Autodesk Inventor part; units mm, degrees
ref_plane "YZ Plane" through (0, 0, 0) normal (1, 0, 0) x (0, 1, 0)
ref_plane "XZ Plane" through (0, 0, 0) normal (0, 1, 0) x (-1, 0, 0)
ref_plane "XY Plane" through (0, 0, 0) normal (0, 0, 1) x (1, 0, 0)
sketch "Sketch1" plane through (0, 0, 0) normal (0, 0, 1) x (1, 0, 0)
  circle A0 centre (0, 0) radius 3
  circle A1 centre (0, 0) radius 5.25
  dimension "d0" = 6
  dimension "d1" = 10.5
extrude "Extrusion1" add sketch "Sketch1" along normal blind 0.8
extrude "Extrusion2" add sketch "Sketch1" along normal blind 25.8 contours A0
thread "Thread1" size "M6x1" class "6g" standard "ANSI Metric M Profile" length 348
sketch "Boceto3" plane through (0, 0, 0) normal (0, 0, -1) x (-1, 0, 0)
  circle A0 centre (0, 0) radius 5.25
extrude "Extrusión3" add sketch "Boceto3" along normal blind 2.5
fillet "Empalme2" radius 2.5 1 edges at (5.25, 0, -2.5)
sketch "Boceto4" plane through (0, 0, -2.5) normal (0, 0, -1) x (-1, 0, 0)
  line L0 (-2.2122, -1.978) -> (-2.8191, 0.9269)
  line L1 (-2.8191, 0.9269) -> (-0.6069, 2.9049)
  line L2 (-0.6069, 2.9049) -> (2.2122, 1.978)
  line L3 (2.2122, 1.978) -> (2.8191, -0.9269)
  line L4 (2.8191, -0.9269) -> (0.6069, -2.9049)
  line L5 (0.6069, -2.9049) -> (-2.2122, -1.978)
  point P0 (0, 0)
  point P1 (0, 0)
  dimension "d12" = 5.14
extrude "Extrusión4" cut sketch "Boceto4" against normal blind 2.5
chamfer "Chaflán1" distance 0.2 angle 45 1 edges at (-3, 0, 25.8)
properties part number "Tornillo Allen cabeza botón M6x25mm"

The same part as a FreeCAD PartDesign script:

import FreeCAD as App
import Part
import Sketcher

V = App.Vector
Q = App.Units.Quantity


def edges_at(feature, points):
    """Names of the edges that pass closest to the given points."""
    edges = feature.Shape.Edges
    near = lambda p: min(range(len(edges)), key=lambda i: edges[i].distToShape(Part.Vertex(*p))[0])
    return sorted({f"Edge{near(p) + 1}" for p in points})


def add_polygon(sketch, points):
    """Adds a closed chain of lines whose ends are joined by coincident constraints."""
    first, n = sketch.GeometryCount, len(points)
    for a, b in zip(points, points[1:] + points[:1]):
        sketch.addGeometry(Part.LineSegment(App.Vector(*a, 0), App.Vector(*b, 0)), False)
    for i in range(n):
        sketch.addConstraint(Sketcher.Constraint("Coincident", first + i, 2, first + (i + 1) % n, 1))

doc = App.newDocument("Part")
body = doc.addObject("PartDesign::Body", "Body")

# Sketch on XY plane
sketch1 = body.newObject("Sketcher::SketchObject", "Sketch")
sketch1.AttachmentSupport = (doc.getObject("XY_Plane"), [""])
sketch1.MapMode = "FlatFace"
sketch1.addGeometry([
    Part.Circle(V(0, 0, 0), V(0, 0, 1), 5.2),
    Part.Circle(V(0, 0, 0), V(0, 0, 1), 3),
], False)
sketch1.addConstraint([
    Sketcher.Constraint("Coincident", 0, 3, -1, 1),
    Sketcher.Constraint("Coincident", 1, 3, -1, 1),
    Sketcher.Constraint("Diameter", 1, 6.0),
    Sketcher.Constraint("Diameter", 0, 10.5),
])
pad1 = body.newObject("PartDesign::Pad", "Pad")
pad1.Profile = sketch1
pad1.Length = 0.8

# Sketch on XY plane
sketch2 = body.newObject("Sketcher::SketchObject", "Sketch001")
sketch2.AttachmentSupport = (doc.getObject("XY_Plane"), [""])
sketch2.MapMode = "FlatFace"
sketch2.addGeometry(Part.Circle(V(0, 0, 0), V(0, 0, 1), 3), False)
sketch2.addConstraint([
    Sketcher.Constraint("Coincident", 0, 3, -1, 1),
    Sketcher.Constraint("Diameter", 0, 6.0),
])
pad2 = body.newObject("PartDesign::Pad", "Pad001")
pad2.Profile = sketch2
pad2.Length = 25.8

# Sketch on XY plane
sketch3 = body.newObject("Sketcher::SketchObject", "Sketch002")
sketch3.AttachmentSupport = (doc.getObject("XY_Plane"), [""])
sketch3.MapMode = "FlatFace"
sketch3.addGeometry(Part.Circle(V(0, 0, 0), V(0, 0, 1), 5), False)
sketch3.addConstraint([
    Sketcher.Constraint("Coincident", 0, 3, -1, 1),
    Sketcher.Constraint("Diameter", 0, 10.5),
])
pad3 = body.newObject("PartDesign::Pad", "Pad002")
pad3.Profile = sketch3
pad3.Length = 2.5
pad3.Reversed = True
doc.recompute()

fillet = body.newObject("PartDesign::Fillet", "Fillet")
fillet.Base = (pad3, edges_at(pad3, [(5.25, 0, -2.5)]))
fillet.Radius = 2.5

# Sketch on XY plane
sketch4 = body.newObject("Sketcher::SketchObject", "Sketch003")
sketch4.AttachmentSupport = (doc.getObject("XY_Plane"), [""])
sketch4.MapMode = "FlatFace"
sketch4.AttachmentOffset = App.Placement(V(0, 0, -2.5), App.Rotation())
add_polygon(sketch4, [(2.8, 0.9), (2.2, -2), (-0.6, -2.9), (-2.8, -0.9), (-2.2, 2), (0.6, 2.9)])  # lines 0-5
sketch4.addConstraint([
    Sketcher.Constraint("Symmetric", 0, 2, 3, 2, -1, 1),
    Sketcher.Constraint("Symmetric", 1, 2, 4, 2, -1, 1),
    Sketcher.Constraint("Symmetric", 2, 2, 5, 2, -1, 1),
    Sketcher.Constraint("Equal", 0, 1),
    Sketcher.Constraint("Equal", 1, 2),
    Sketcher.Constraint("Angle", 0, Q("-101.8007 deg")),
    Sketcher.Constraint("Angle", 1, Q("-161.7995 deg")),
    Sketcher.Constraint("Angle", 2, Q("138.199 deg")),
    Sketcher.Constraint("DistanceY", 0, 2, -1, 1, 1.978),
])
pocket1 = body.newObject("PartDesign::Pocket", "Pocket")
pocket1.Profile = sketch4
pocket1.Length = 2.5
pocket1.Reversed = True
doc.recompute()

chamfer = body.newObject("PartDesign::Chamfer", "Chamfer")
chamfer.Base = (pocket1, edges_at(pocket1, [(-3, 0, 25.8)]))
chamfer.Size = 0.2

doc.recompute()
